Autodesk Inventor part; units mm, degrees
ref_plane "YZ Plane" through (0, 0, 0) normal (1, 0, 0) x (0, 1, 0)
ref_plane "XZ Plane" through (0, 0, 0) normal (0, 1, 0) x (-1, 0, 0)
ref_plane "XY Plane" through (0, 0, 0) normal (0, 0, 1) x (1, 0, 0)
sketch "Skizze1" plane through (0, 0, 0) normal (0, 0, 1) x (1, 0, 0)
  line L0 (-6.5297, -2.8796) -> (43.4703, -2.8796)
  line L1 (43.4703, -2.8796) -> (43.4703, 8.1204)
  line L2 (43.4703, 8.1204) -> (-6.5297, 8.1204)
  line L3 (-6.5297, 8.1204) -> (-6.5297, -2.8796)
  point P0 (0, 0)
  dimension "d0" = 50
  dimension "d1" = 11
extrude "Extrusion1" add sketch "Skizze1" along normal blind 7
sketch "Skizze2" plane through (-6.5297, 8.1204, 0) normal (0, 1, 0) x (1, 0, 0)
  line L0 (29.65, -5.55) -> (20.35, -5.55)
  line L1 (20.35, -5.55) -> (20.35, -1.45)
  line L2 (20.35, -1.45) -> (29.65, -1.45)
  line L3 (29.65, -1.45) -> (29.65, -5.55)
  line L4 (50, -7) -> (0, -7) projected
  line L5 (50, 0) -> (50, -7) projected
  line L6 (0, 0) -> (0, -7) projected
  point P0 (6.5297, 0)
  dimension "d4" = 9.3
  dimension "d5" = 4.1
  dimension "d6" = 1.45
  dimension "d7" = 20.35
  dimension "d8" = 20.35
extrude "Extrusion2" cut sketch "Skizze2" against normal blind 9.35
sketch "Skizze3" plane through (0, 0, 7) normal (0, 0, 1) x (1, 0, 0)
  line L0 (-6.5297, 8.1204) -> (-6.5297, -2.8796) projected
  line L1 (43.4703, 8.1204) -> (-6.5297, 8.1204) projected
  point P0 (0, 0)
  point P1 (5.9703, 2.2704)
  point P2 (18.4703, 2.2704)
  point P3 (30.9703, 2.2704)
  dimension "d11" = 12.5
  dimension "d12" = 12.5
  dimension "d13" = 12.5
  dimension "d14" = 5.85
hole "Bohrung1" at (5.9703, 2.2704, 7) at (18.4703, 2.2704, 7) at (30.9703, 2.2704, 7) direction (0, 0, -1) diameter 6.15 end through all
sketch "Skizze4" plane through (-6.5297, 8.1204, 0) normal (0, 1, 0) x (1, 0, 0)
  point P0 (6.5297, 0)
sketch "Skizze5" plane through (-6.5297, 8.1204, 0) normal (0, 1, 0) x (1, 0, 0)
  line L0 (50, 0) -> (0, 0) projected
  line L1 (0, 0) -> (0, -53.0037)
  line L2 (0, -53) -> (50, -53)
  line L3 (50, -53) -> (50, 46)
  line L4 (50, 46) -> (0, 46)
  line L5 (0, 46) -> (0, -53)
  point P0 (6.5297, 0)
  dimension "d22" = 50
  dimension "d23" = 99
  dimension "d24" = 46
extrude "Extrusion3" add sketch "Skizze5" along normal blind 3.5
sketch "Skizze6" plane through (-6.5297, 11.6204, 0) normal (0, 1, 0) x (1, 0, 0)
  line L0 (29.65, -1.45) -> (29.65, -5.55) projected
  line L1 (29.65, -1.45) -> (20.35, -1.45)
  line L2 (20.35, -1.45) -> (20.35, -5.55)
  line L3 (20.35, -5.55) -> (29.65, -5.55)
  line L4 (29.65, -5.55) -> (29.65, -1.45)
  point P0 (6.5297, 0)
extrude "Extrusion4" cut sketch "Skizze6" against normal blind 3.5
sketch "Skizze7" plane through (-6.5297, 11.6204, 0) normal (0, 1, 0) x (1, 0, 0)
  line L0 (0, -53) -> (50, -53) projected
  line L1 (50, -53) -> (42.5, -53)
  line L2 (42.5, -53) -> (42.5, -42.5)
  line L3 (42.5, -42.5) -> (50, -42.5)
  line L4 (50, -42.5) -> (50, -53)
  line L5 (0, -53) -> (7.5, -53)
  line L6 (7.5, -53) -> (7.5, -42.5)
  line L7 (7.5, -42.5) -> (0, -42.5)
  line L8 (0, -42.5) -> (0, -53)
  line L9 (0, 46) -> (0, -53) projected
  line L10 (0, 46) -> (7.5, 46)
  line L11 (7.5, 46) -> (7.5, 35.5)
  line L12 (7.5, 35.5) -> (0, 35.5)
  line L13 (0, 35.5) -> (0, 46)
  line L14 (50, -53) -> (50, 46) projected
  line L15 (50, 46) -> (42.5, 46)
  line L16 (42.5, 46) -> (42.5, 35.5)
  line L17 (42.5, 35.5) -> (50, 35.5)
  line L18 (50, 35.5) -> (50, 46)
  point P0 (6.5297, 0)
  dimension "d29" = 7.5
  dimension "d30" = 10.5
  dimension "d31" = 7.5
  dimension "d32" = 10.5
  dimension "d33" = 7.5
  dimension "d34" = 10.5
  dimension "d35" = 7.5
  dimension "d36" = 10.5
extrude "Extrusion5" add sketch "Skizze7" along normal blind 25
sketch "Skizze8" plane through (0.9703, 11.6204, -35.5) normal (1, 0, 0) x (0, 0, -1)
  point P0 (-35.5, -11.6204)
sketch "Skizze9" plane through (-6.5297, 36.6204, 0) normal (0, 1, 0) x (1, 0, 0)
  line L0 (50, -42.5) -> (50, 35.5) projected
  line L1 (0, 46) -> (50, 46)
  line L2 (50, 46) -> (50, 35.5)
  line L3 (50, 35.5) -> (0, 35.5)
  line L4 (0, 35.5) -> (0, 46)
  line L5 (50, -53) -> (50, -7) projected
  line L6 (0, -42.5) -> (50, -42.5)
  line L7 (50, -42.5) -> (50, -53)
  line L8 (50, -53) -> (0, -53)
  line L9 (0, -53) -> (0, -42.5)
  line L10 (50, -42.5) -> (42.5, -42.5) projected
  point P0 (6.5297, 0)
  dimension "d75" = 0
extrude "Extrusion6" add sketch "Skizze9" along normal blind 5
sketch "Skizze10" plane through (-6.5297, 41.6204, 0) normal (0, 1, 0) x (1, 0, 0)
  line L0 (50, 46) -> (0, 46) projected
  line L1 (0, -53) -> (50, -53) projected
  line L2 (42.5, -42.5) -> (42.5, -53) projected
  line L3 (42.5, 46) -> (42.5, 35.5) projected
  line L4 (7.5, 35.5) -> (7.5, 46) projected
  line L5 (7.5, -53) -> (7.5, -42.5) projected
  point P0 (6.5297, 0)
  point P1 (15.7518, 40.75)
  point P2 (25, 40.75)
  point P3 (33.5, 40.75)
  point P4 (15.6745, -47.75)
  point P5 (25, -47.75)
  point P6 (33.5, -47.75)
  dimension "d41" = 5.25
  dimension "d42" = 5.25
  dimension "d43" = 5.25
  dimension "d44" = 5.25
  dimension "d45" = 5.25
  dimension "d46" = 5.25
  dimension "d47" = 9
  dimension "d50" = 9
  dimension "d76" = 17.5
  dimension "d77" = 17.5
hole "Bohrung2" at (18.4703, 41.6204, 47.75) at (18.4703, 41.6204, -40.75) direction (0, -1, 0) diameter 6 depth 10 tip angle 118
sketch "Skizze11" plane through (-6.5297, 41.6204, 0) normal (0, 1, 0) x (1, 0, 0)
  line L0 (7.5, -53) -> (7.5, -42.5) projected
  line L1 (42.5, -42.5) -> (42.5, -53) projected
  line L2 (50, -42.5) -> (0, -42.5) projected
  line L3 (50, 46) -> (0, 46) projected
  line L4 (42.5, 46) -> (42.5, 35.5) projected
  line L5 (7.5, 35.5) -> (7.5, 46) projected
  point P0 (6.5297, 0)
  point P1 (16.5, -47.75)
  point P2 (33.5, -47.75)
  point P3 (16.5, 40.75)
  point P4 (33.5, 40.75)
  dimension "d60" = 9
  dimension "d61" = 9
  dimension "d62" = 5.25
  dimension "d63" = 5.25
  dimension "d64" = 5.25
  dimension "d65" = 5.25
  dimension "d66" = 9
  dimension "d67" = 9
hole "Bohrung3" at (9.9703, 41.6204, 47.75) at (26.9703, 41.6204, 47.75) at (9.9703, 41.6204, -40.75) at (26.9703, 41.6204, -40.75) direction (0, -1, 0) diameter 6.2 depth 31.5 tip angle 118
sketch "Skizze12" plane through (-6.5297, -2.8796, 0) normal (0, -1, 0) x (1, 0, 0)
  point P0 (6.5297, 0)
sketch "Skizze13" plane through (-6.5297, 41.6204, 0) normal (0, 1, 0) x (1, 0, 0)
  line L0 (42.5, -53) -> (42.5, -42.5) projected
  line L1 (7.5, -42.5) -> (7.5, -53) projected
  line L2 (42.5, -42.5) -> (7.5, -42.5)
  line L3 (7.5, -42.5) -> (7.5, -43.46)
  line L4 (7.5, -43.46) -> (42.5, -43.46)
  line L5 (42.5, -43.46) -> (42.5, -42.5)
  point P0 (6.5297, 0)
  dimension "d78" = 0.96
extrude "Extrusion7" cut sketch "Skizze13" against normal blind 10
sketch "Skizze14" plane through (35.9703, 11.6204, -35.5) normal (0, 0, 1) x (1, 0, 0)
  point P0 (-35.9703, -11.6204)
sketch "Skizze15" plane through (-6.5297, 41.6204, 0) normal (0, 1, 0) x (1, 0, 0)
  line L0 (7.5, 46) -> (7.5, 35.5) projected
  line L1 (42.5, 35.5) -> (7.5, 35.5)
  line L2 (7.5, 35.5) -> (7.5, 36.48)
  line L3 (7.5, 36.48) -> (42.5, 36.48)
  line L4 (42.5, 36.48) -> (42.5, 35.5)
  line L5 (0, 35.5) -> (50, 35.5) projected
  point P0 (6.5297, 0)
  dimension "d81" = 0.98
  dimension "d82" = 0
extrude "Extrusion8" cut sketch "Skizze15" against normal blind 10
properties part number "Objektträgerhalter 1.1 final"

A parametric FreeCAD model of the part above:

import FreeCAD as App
import Part
import Sketcher
Q = App.Units.Quantity


def add_polygon(sketch, points):
    """Adds a closed chain of lines whose ends are joined by coincident constraints."""
    first, n = sketch.GeometryCount, len(points)
    for a, b in zip(points, points[1:] + points[:1]):
        sketch.addGeometry(Part.LineSegment(App.Vector(*a, 0), App.Vector(*b, 0)), False)
    for i in range(n):
        sketch.addConstraint(Sketcher.Constraint("Coincident", first + i, 2, first + (i + 1) % n, 1))

doc = App.newDocument("Part")
body = doc.addObject("PartDesign::Body", "Body")

# Sketch on XY plane
sketch1 = body.newObject("Sketcher::SketchObject", "Sketch")
sketch1.AttachmentSupport = (doc.getObject("XY_Plane"), [""])
sketch1.MapMode = "FlatFace"
add_polygon(sketch1, [(-7, 8), (-7, -3), (43, -3), (43, 8)])  # lines 0-3
sketch1.addConstraint([
    Sketcher.Constraint("Vertical", 0),
    Sketcher.Constraint("Horizontal", 1),
    Sketcher.Constraint("Vertical", 2),
    Sketcher.Constraint("Horizontal", 3),
    Sketcher.Constraint("DistanceX", 1, 1, 1, 2, Q("50 mm")),
    Sketcher.Constraint("DistanceY", 0, 2, 0, 1, Q("11 mm")),
    Sketcher.Constraint("DistanceX", 0, 2, -1, 1, Q("6.5297 mm")),
    Sketcher.Constraint("DistanceY", 0, 2, -1, 1, Q("2.8796 mm")),
])
pad1 = body.newObject("PartDesign::Pad", "Pad")
pad1.Profile = sketch1
pad1.Length = 7

# Sketch on XZ plane
sketch2 = body.newObject("Sketcher::SketchObject", "Sketch001")
sketch2.AttachmentSupport = (doc.getObject("XZ_Plane"), [""])
sketch2.MapMode = "FlatFace"
sketch2.AttachmentOffset = App.Placement(App.Vector(0, 0, -8.1204), App.Rotation())
add_polygon(sketch2, [(13.8, 5.5), (23.1, 5.5), (23.1, 1.4), (13.8, 1.4)])  # lines 0-3
sketch2.addConstraint([
    Sketcher.Constraint("Horizontal", 0),
    Sketcher.Constraint("Vertical", 1),
    Sketcher.Constraint("Horizontal", 2),
    Sketcher.Constraint("Vertical", 3),
    Sketcher.Constraint("DistanceX", 0, 1, 0, 2, Q("9.3 mm")),
    Sketcher.Constraint("DistanceY", 1, 2, 1, 1, Q("4.1 mm")),
    Sketcher.Constraint("DistanceY", -1, 1, 1, 2, Q("1.45 mm")),
    Sketcher.Constraint("DistanceX", -1, 1, 0, 2, Q("23.1203 mm")),
])
pocket1 = body.newObject("PartDesign::Pocket", "Pocket")
pocket1.Profile = sketch2
pocket1.Length = 9.35
pocket1.Reversed = True

# Sketch on XY plane
sketch3 = body.newObject("Sketcher::SketchObject", "Sketch002")
sketch3.AttachmentSupport = (doc.getObject("XY_Plane"), [""])
sketch3.MapMode = "FlatFace"
sketch3.AttachmentOffset = App.Placement(App.Vector(0, 0, 7), App.Rotation())
sketch3.addGeometry([
    Part.Circle(App.Vector(6, 2.3, 0), App.Vector(0, 0, 1), 3.1),
    Part.Circle(App.Vector(18.5, 2.3, 0), App.Vector(0, 0, 1), 3.1),
    Part.Circle(App.Vector(31, 2.3, 0), App.Vector(0, 0, 1), 3.1),
], False)
sketch3.addConstraint([
    Sketcher.Constraint("Equal", 0, 1),
    Sketcher.Constraint("Equal", 1, 2),
    Sketcher.Constraint("Horizontal", 0, 3, 1, 3),
    Sketcher.Constraint("Horizontal", 1, 3, 2, 3),
    Sketcher.Constraint("Diameter", 0, Q("6.15 mm")),
    Sketcher.Constraint("DistanceX", 0, 3, 2, 3, Q("25 mm")),
    Sketcher.Constraint("DistanceX", 0, 3, 1, 3, Q("12.5 mm")),
    Sketcher.Constraint("DistanceX", -1, 1, 0, 3, Q("5.9703 mm")),
    Sketcher.Constraint("DistanceY", -1, 1, 0, 3, Q("2.2704 mm")),
])
doc.recompute()
hole = body.newObject("PartDesign::Hole", "Hole")
hole.Profile = sketch3
hole.ThreadType = "None"
hole.Diameter = 6.15
hole.DepthType = "ThroughAll"

# Sketch on XZ plane
sketch4 = body.newObject("Sketcher::SketchObject", "Sketch003")
sketch4.AttachmentSupport = (doc.getObject("XZ_Plane"), [""])
sketch4.MapMode = "FlatFace"
sketch4.AttachmentOffset = App.Placement(App.Vector(0, 0, -8.1204), App.Rotation())
add_polygon(sketch4, [(43, 53), (43, -46), (-7, -46), (-7, 53)])  # lines 0-3
sketch4.addConstraint([
    Sketcher.Constraint("Vertical", 0),
    Sketcher.Constraint("Horizontal", 1),
    Sketcher.Constraint("Vertical", 2),
    Sketcher.Constraint("Horizontal", 3),
    Sketcher.Constraint("DistanceX", 1, 2, 1, 1, Q("50 mm")),
    Sketcher.Constraint("DistanceY", 0, 2, 0, 1, Q("99 mm")),
    Sketcher.Constraint("DistanceY", 0, 2, -1, 1, Q("46 mm")),
    Sketcher.Constraint("DistanceX", -1, 1, 0, 2, Q("43.4703 mm")),
])
pad2 = body.newObject("PartDesign::Pad", "Pad001")
pad2.Profile = sketch4
pad2.Length = 3.5
pad2.Reversed = True

# Sketch on XZ plane
sketch5 = body.newObject("Sketcher::SketchObject", "Sketch004")
sketch5.AttachmentSupport = (doc.getObject("XZ_Plane"), [""])
sketch5.MapMode = "FlatFace"
sketch5.AttachmentOffset = App.Placement(App.Vector(0, 0, -11.6204), App.Rotation())
add_polygon(sketch5, [(23.1, 5.5), (23.1, 1.4), (13.8, 1.4), (13.8, 5.5)])  # lines 0-3
sketch5.addConstraint([
    Sketcher.Constraint("Vertical", 0),
    Sketcher.Constraint("Horizontal", 1),
    Sketcher.Constraint("Vertical", 2),
    Sketcher.Constraint("Horizontal", 3),
    Sketcher.Constraint("DistanceX", 1, 2, 1, 1, Q("9.3 mm")),
    Sketcher.Constraint("DistanceY", 0, 2, 0, 1, Q("4.1 mm")),
    Sketcher.Constraint("DistanceY", -1, 1, 0, 2, Q("1.45 mm")),
    Sketcher.Constraint("DistanceX", -1, 1, 0, 2, Q("23.1203 mm")),
])
pocket2 = body.newObject("PartDesign::Pocket", "Pocket001")
pocket2.Profile = sketch5
pocket2.Length = 3.5
pocket2.Reversed = True

# Sketch on XZ plane
sketch6 = body.newObject("Sketcher::SketchObject", "Sketch005")
sketch6.AttachmentSupport = (doc.getObject("XZ_Plane"), [""])
sketch6.MapMode = "FlatFace"
sketch6.AttachmentOffset = App.Placement(App.Vector(0, 0, -11.6204), App.Rotation())
add_polygon(sketch6, [(-7, 42), (-7, 53), (1, 53), (1, 42)])  # lines 0-3
add_polygon(sketch6, [(-7, -46), (-7, -36), (1, -36), (1, -46)])  # lines 4-7
add_polygon(sketch6, [(36, -36), (43, -36), (43, -46), (36, -46)])  # lines 8-11
add_polygon(sketch6, [(36, 42), (36, 53), (43, 53), (43, 42)])  # lines 12-15
sketch6.addConstraint([
    Sketcher.Constraint("Vertical", 0),
    Sketcher.Constraint("Horizontal", 1),
    Sketcher.Constraint("Vertical", 2),
    Sketcher.Constraint("Horizontal", 3),
    Sketcher.Constraint("Vertical", 4),
    Sketcher.Constraint("Horizontal", 5),
    Sketcher.Constraint("Vertical", 6),
    Sketcher.Constraint("Horizontal", 7),
    Sketcher.Constraint("Horizontal", 8),
    Sketcher.Constraint("Vertical", 9),
    Sketcher.Constraint("Horizontal", 10),
    Sketcher.Constraint("Vertical", 11),
    Sketcher.Constraint("Vertical", 12),
    Sketcher.Constraint("Horizontal", 13),
    Sketcher.Constraint("Vertical", 14),
    Sketcher.Constraint("Horizontal", 15),
    Sketcher.Constraint("Horizontal", 5, 2, 8, 2),
    Sketcher.Constraint("Horizontal", 7, 2, 9, 2),
    Sketcher.Constraint("Horizontal", 1, 2, 12, 2),
    Sketcher.Constraint("Horizontal", 3, 2, 14, 2),
    Sketcher.Constraint("Vertical", 3, 2, 4, 2),
    Sketcher.Constraint("Vertical", 2, 2, 5, 2),
    Sketcher.Constraint("Vertical", 11, 2, 12, 2),
    Sketcher.Constraint("Vertical", 9, 2, 13, 2),
    Sketcher.Constraint("Equal", 7, 8),
    Sketcher.Constraint("Equal", 2, 4),
    Sketcher.Constraint("DistanceX", 1, 1, 1, 2, Q("7.5 mm")),
    Sketcher.Constraint("DistanceY", 0, 1, 0, 2, Q("10.5 mm")),
    Sketcher.Constraint("DistanceY", -1, 1, 0, 2, Q("53 mm")),
    Sketcher.Constraint("DistanceY", 6, 2, -1, 1, Q("46 mm")),
    Sketcher.Constraint("DistanceX", 4, 2, 8, 2, Q("50 mm")),
    Sketcher.Constraint("DistanceX", 0, 2, -1, 1, Q("6.5297 mm")),
])
pad3 = body.newObject("PartDesign::Pad", "Pad002")
pad3.Profile = sketch6
pad3.Length = 25
pad3.Reversed = True

# Sketch on XZ plane
sketch7 = body.newObject("Sketcher::SketchObject", "Sketch006")
sketch7.AttachmentSupport = (doc.getObject("XZ_Plane"), [""])
sketch7.MapMode = "FlatFace"
sketch7.AttachmentOffset = App.Placement(App.Vector(0, 0, -36.6204), App.Rotation())
add_polygon(sketch7, [(-7, -36), (43, -36), (43, -46), (-7, -46)])  # lines 0-3
add_polygon(sketch7, [(43, 53), (43, 42), (-7, 42), (-7, 53)])  # lines 4-7
sketch7.addConstraint([
    Sketcher.Constraint("Horizontal", 0),
    Sketcher.Constraint("Vertical", 1),
    Sketcher.Constraint("Horizontal", 2),
    Sketcher.Constraint("Vertical", 3),
    Sketcher.Constraint("Vertical", 4),
    Sketcher.Constraint("Horizontal", 5),
    Sketcher.Constraint("Vertical", 6),
    Sketcher.Constraint("Horizontal", 7),
    Sketcher.Constraint("Vertical", 1, 2, 4, 2),
    Sketcher.Constraint("Vertical", 3, 2, 5, 2),
    Sketcher.Constraint("Equal", 3, 4),
    Sketcher.Constraint("DistanceX", 0, 1, 0, 2, Q("50 mm")),
    Sketcher.Constraint("DistanceY", 1, 2, 1, 1, Q("10.5 mm")),
    Sketcher.Constraint("DistanceY", 1, 2, -1, 1, Q("46 mm")),
    Sketcher.Constraint("DistanceY", -1, 1, 6, 2, Q("53 mm")),
    Sketcher.Constraint("DistanceX", -1, 1, 0, 2, Q("43.4703 mm")),
])
pad4 = body.newObject("PartDesign::Pad", "Pad003")
pad4.Profile = sketch7
pad4.Length = 5
pad4.Reversed = True

# Sketch on XZ plane
sketch8 = body.newObject("Sketcher::SketchObject", "Sketch007")
sketch8.AttachmentSupport = (doc.getObject("XZ_Plane"), [""])
sketch8.MapMode = "FlatFace"
sketch8.AttachmentOffset = App.Placement(App.Vector(0, 0, -41.6204), App.Rotation())
sketch8.addGeometry([
    Part.Circle(App.Vector(18.5, 47.8, 0), App.Vector(0, 0, 1), 3),
    Part.Circle(App.Vector(18.5, -40.8, 0), App.Vector(0, 0, 1), 3),
], False)
sketch8.addConstraint([
    Sketcher.Constraint("Equal", 0, 1),
    Sketcher.Constraint("Vertical", 0, 3, 1, 3),
    Sketcher.Constraint("Diameter", 0, Q("6 mm")),
    Sketcher.Constraint("DistanceY", 1, 3, 0, 3, Q("88.5 mm")),
    Sketcher.Constraint("DistanceY", -1, 1, 0, 3, Q("47.75 mm")),
    Sketcher.Constraint("DistanceX", -1, 1, 0, 3, Q("18.4703 mm")),
])
doc.recompute()
hole2 = body.newObject("PartDesign::Hole", "Hole001")
hole2.Profile = sketch8
hole2.ThreadType = "None"
hole2.Diameter = 6
hole2.DepthType = "Dimension"
hole2.Depth = 10
hole2.DrillPoint = "Angled"
hole2.DrillPointAngle = 118
hole2.Reversed = True

# Sketch on XZ plane
sketch9 = body.newObject("Sketcher::SketchObject", "Sketch008")
sketch9.AttachmentSupport = (doc.getObject("XZ_Plane"), [""])
sketch9.MapMode = "FlatFace"
sketch9.AttachmentOffset = App.Placement(App.Vector(0, 0, -41.6204), App.Rotation())
sketch9.addGeometry([
    Part.Circle(App.Vector(10, 47.8, 0), App.Vector(0, 0, 1), 3.1),
    Part.Circle(App.Vector(27, 47.8, 0), App.Vector(0, 0, 1), 3.1),
    Part.Circle(App.Vector(10, -40.8, 0), App.Vector(0, 0, 1), 3.1),
    Part.Circle(App.Vector(27, -40.8, 0), App.Vector(0, 0, 1), 3.1),
], False)
sketch9.addConstraint([
    Sketcher.Constraint("Equal", 0, 1),
    Sketcher.Constraint("Equal", 1, 2),
    Sketcher.Constraint("Equal", 2, 3),
    Sketcher.Constraint("Horizontal", 0, 3, 1, 3),
    Sketcher.Constraint("Horizontal", 2, 3, 3, 3),
    Sketcher.Constraint("Vertical", 0, 3, 2, 3),
    Sketcher.Constraint("Vertical", 1, 3, 3, 3),
    Sketcher.Constraint("Diameter", 0, Q("6.2 mm")),
    Sketcher.Constraint("DistanceX", 0, 3, 1, 3, Q("17 mm")),
    Sketcher.Constraint("DistanceY", 2, 3, 0, 3, Q("88.5 mm")),
    Sketcher.Constraint("DistanceY", -1, 1, 0, 3, Q("47.75 mm")),
    Sketcher.Constraint("DistanceX", -1, 1, 0, 3, Q("9.9703 mm")),
])
doc.recompute()
hole3 = body.newObject("PartDesign::Hole", "Hole002")
hole3.Profile = sketch9
hole3.ThreadType = "None"
hole3.Diameter = 6.2
hole3.DepthType = "Dimension"
hole3.Depth = 31.5
hole3.DrillPoint = "Angled"
hole3.DrillPointAngle = 118
hole3.Reversed = True

# Sketch on XZ plane
sketch10 = body.newObject("Sketcher::SketchObject", "Sketch009")
sketch10.AttachmentSupport = (doc.getObject("XZ_Plane"), [""])
sketch10.MapMode = "FlatFace"
sketch10.AttachmentOffset = App.Placement(App.Vector(0, 0, -41.6204), App.Rotation())
add_polygon(sketch10, [(1, 43.5), (36, 43.5), (36, 42.5), (1, 42.5)])  # lines 0-3
sketch10.addConstraint([
    Sketcher.Constraint("Horizontal", 0),
    Sketcher.Constraint("Vertical", 1),
    Sketcher.Constraint("Horizontal", 2),
    Sketcher.Constraint("Vertical", 3),
    Sketcher.Constraint("DistanceY", 1, 2, 1, 1, Q("0.96 mm")),
    Sketcher.Constraint("DistanceX", 0, 1, 0, 2, Q("35 mm")),
    Sketcher.Constraint("DistanceY", -1, 1, 1, 2, Q("42.5 mm")),
    Sketcher.Constraint("DistanceX", -1, 1, 0, 2, Q("35.9703 mm")),
])
pocket3 = body.newObject("PartDesign::Pocket", "Pocket002")
pocket3.Profile = sketch10
pocket3.Length = 10
pocket3.Reversed = True

# Sketch on XZ plane
sketch11 = body.newObject("Sketcher::SketchObject", "Sketch010")
sketch11.AttachmentSupport = (doc.getObject("XZ_Plane"), [""])
sketch11.MapMode = "FlatFace"
sketch11.AttachmentOffset = App.Placement(App.Vector(0, 0, -41.6204), App.Rotation())
add_polygon(sketch11, [(36, -36.5), (1, -36.5), (1, -35.5), (36, -35.5)])  # lines 0-3
sketch11.addConstraint([
    Sketcher.Constraint("Horizontal", 0),
    Sketcher.Constraint("Vertical", 1),
    Sketcher.Constraint("Horizontal", 2),
    Sketcher.Constraint("Vertical", 3),
    Sketcher.Constraint("DistanceY", 1, 1, 1, 2, Q("0.98 mm")),
    Sketcher.Constraint("DistanceX", 0, 2, 0, 1, Q("35 mm")),
    Sketcher.Constraint("DistanceY", 1, 2, -1, 1, Q("35.5 mm")),
    Sketcher.Constraint("DistanceX", -1, 1, 0, 2, Q("0.9703 mm")),
])
pocket4 = body.newObject("PartDesign::Pocket", "Pocket003")
pocket4.Profile = sketch11
pocket4.Length = 10
pocket4.Reversed = True

doc.recompute()
